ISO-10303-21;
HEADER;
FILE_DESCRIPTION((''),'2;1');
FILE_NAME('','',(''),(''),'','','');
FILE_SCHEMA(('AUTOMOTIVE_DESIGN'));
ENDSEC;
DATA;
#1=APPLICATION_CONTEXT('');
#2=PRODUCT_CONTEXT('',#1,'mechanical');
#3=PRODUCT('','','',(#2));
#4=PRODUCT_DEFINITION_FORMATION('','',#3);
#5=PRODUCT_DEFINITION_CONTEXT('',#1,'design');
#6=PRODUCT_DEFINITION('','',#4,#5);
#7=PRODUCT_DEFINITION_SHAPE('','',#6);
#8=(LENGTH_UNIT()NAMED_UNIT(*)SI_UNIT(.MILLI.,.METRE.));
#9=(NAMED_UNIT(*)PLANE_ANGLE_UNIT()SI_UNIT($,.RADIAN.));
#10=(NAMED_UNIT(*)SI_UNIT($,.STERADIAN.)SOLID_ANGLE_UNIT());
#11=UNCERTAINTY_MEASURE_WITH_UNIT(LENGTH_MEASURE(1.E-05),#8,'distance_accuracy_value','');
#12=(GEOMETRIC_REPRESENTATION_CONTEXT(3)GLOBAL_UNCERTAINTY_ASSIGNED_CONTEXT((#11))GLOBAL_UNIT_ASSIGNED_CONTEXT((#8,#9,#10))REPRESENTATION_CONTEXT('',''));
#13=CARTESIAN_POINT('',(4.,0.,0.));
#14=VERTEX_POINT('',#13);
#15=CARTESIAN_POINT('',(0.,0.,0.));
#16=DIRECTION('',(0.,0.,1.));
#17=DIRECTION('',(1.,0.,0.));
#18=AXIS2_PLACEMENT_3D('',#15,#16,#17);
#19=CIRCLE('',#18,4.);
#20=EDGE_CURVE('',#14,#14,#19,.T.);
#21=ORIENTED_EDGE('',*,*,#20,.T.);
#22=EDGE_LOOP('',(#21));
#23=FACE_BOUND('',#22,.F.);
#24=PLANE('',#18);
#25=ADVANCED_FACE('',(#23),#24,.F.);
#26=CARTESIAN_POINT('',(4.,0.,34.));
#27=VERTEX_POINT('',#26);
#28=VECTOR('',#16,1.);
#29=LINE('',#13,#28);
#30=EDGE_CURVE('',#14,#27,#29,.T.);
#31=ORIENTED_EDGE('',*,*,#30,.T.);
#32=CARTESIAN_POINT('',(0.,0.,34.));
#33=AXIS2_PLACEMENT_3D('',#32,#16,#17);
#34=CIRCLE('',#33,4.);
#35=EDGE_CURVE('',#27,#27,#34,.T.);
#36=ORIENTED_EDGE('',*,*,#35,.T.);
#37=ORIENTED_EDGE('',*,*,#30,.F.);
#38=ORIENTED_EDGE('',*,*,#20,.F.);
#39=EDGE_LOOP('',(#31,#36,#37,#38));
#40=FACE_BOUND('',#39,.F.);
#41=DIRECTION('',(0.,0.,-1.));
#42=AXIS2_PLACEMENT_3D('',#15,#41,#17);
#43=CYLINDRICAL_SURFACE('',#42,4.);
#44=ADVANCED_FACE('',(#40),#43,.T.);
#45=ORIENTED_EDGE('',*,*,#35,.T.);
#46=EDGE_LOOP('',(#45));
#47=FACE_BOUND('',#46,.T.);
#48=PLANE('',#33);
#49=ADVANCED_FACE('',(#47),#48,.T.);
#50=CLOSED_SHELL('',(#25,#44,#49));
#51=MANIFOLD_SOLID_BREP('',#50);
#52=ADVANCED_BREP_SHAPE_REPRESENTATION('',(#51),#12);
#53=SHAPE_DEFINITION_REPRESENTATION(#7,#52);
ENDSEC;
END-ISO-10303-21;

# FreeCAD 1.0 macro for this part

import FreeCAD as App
import Part
import Sketcher

V = App.Vector
Q = App.Units.Quantity

doc = App.newDocument("Part")
body = doc.addObject("PartDesign::Body", "Body")

sketch1 = doc.addObject("Sketcher::SketchObject", "Sketch")
body.addObject(sketch1)
sketch1.AttachmentSupport = (doc.XY_Plane, [""])
sketch1.MapMode = "FlatFace"
sketch1.addGeometry(Part.Circle(V(0, 0, 0), V(0, 0, 1), 4), False)
sketch1.addConstraint([
    Sketcher.Constraint("Coincident", 0, 3, -1, 1),
    Sketcher.Constraint("Diameter", 0, Q("8 mm")),
])
pad1 = doc.addObject("PartDesign::Pad", "Pad")
body.addObject(pad1)
pad1.Profile = sketch1
pad1.Length = 34

doc.recompute()
